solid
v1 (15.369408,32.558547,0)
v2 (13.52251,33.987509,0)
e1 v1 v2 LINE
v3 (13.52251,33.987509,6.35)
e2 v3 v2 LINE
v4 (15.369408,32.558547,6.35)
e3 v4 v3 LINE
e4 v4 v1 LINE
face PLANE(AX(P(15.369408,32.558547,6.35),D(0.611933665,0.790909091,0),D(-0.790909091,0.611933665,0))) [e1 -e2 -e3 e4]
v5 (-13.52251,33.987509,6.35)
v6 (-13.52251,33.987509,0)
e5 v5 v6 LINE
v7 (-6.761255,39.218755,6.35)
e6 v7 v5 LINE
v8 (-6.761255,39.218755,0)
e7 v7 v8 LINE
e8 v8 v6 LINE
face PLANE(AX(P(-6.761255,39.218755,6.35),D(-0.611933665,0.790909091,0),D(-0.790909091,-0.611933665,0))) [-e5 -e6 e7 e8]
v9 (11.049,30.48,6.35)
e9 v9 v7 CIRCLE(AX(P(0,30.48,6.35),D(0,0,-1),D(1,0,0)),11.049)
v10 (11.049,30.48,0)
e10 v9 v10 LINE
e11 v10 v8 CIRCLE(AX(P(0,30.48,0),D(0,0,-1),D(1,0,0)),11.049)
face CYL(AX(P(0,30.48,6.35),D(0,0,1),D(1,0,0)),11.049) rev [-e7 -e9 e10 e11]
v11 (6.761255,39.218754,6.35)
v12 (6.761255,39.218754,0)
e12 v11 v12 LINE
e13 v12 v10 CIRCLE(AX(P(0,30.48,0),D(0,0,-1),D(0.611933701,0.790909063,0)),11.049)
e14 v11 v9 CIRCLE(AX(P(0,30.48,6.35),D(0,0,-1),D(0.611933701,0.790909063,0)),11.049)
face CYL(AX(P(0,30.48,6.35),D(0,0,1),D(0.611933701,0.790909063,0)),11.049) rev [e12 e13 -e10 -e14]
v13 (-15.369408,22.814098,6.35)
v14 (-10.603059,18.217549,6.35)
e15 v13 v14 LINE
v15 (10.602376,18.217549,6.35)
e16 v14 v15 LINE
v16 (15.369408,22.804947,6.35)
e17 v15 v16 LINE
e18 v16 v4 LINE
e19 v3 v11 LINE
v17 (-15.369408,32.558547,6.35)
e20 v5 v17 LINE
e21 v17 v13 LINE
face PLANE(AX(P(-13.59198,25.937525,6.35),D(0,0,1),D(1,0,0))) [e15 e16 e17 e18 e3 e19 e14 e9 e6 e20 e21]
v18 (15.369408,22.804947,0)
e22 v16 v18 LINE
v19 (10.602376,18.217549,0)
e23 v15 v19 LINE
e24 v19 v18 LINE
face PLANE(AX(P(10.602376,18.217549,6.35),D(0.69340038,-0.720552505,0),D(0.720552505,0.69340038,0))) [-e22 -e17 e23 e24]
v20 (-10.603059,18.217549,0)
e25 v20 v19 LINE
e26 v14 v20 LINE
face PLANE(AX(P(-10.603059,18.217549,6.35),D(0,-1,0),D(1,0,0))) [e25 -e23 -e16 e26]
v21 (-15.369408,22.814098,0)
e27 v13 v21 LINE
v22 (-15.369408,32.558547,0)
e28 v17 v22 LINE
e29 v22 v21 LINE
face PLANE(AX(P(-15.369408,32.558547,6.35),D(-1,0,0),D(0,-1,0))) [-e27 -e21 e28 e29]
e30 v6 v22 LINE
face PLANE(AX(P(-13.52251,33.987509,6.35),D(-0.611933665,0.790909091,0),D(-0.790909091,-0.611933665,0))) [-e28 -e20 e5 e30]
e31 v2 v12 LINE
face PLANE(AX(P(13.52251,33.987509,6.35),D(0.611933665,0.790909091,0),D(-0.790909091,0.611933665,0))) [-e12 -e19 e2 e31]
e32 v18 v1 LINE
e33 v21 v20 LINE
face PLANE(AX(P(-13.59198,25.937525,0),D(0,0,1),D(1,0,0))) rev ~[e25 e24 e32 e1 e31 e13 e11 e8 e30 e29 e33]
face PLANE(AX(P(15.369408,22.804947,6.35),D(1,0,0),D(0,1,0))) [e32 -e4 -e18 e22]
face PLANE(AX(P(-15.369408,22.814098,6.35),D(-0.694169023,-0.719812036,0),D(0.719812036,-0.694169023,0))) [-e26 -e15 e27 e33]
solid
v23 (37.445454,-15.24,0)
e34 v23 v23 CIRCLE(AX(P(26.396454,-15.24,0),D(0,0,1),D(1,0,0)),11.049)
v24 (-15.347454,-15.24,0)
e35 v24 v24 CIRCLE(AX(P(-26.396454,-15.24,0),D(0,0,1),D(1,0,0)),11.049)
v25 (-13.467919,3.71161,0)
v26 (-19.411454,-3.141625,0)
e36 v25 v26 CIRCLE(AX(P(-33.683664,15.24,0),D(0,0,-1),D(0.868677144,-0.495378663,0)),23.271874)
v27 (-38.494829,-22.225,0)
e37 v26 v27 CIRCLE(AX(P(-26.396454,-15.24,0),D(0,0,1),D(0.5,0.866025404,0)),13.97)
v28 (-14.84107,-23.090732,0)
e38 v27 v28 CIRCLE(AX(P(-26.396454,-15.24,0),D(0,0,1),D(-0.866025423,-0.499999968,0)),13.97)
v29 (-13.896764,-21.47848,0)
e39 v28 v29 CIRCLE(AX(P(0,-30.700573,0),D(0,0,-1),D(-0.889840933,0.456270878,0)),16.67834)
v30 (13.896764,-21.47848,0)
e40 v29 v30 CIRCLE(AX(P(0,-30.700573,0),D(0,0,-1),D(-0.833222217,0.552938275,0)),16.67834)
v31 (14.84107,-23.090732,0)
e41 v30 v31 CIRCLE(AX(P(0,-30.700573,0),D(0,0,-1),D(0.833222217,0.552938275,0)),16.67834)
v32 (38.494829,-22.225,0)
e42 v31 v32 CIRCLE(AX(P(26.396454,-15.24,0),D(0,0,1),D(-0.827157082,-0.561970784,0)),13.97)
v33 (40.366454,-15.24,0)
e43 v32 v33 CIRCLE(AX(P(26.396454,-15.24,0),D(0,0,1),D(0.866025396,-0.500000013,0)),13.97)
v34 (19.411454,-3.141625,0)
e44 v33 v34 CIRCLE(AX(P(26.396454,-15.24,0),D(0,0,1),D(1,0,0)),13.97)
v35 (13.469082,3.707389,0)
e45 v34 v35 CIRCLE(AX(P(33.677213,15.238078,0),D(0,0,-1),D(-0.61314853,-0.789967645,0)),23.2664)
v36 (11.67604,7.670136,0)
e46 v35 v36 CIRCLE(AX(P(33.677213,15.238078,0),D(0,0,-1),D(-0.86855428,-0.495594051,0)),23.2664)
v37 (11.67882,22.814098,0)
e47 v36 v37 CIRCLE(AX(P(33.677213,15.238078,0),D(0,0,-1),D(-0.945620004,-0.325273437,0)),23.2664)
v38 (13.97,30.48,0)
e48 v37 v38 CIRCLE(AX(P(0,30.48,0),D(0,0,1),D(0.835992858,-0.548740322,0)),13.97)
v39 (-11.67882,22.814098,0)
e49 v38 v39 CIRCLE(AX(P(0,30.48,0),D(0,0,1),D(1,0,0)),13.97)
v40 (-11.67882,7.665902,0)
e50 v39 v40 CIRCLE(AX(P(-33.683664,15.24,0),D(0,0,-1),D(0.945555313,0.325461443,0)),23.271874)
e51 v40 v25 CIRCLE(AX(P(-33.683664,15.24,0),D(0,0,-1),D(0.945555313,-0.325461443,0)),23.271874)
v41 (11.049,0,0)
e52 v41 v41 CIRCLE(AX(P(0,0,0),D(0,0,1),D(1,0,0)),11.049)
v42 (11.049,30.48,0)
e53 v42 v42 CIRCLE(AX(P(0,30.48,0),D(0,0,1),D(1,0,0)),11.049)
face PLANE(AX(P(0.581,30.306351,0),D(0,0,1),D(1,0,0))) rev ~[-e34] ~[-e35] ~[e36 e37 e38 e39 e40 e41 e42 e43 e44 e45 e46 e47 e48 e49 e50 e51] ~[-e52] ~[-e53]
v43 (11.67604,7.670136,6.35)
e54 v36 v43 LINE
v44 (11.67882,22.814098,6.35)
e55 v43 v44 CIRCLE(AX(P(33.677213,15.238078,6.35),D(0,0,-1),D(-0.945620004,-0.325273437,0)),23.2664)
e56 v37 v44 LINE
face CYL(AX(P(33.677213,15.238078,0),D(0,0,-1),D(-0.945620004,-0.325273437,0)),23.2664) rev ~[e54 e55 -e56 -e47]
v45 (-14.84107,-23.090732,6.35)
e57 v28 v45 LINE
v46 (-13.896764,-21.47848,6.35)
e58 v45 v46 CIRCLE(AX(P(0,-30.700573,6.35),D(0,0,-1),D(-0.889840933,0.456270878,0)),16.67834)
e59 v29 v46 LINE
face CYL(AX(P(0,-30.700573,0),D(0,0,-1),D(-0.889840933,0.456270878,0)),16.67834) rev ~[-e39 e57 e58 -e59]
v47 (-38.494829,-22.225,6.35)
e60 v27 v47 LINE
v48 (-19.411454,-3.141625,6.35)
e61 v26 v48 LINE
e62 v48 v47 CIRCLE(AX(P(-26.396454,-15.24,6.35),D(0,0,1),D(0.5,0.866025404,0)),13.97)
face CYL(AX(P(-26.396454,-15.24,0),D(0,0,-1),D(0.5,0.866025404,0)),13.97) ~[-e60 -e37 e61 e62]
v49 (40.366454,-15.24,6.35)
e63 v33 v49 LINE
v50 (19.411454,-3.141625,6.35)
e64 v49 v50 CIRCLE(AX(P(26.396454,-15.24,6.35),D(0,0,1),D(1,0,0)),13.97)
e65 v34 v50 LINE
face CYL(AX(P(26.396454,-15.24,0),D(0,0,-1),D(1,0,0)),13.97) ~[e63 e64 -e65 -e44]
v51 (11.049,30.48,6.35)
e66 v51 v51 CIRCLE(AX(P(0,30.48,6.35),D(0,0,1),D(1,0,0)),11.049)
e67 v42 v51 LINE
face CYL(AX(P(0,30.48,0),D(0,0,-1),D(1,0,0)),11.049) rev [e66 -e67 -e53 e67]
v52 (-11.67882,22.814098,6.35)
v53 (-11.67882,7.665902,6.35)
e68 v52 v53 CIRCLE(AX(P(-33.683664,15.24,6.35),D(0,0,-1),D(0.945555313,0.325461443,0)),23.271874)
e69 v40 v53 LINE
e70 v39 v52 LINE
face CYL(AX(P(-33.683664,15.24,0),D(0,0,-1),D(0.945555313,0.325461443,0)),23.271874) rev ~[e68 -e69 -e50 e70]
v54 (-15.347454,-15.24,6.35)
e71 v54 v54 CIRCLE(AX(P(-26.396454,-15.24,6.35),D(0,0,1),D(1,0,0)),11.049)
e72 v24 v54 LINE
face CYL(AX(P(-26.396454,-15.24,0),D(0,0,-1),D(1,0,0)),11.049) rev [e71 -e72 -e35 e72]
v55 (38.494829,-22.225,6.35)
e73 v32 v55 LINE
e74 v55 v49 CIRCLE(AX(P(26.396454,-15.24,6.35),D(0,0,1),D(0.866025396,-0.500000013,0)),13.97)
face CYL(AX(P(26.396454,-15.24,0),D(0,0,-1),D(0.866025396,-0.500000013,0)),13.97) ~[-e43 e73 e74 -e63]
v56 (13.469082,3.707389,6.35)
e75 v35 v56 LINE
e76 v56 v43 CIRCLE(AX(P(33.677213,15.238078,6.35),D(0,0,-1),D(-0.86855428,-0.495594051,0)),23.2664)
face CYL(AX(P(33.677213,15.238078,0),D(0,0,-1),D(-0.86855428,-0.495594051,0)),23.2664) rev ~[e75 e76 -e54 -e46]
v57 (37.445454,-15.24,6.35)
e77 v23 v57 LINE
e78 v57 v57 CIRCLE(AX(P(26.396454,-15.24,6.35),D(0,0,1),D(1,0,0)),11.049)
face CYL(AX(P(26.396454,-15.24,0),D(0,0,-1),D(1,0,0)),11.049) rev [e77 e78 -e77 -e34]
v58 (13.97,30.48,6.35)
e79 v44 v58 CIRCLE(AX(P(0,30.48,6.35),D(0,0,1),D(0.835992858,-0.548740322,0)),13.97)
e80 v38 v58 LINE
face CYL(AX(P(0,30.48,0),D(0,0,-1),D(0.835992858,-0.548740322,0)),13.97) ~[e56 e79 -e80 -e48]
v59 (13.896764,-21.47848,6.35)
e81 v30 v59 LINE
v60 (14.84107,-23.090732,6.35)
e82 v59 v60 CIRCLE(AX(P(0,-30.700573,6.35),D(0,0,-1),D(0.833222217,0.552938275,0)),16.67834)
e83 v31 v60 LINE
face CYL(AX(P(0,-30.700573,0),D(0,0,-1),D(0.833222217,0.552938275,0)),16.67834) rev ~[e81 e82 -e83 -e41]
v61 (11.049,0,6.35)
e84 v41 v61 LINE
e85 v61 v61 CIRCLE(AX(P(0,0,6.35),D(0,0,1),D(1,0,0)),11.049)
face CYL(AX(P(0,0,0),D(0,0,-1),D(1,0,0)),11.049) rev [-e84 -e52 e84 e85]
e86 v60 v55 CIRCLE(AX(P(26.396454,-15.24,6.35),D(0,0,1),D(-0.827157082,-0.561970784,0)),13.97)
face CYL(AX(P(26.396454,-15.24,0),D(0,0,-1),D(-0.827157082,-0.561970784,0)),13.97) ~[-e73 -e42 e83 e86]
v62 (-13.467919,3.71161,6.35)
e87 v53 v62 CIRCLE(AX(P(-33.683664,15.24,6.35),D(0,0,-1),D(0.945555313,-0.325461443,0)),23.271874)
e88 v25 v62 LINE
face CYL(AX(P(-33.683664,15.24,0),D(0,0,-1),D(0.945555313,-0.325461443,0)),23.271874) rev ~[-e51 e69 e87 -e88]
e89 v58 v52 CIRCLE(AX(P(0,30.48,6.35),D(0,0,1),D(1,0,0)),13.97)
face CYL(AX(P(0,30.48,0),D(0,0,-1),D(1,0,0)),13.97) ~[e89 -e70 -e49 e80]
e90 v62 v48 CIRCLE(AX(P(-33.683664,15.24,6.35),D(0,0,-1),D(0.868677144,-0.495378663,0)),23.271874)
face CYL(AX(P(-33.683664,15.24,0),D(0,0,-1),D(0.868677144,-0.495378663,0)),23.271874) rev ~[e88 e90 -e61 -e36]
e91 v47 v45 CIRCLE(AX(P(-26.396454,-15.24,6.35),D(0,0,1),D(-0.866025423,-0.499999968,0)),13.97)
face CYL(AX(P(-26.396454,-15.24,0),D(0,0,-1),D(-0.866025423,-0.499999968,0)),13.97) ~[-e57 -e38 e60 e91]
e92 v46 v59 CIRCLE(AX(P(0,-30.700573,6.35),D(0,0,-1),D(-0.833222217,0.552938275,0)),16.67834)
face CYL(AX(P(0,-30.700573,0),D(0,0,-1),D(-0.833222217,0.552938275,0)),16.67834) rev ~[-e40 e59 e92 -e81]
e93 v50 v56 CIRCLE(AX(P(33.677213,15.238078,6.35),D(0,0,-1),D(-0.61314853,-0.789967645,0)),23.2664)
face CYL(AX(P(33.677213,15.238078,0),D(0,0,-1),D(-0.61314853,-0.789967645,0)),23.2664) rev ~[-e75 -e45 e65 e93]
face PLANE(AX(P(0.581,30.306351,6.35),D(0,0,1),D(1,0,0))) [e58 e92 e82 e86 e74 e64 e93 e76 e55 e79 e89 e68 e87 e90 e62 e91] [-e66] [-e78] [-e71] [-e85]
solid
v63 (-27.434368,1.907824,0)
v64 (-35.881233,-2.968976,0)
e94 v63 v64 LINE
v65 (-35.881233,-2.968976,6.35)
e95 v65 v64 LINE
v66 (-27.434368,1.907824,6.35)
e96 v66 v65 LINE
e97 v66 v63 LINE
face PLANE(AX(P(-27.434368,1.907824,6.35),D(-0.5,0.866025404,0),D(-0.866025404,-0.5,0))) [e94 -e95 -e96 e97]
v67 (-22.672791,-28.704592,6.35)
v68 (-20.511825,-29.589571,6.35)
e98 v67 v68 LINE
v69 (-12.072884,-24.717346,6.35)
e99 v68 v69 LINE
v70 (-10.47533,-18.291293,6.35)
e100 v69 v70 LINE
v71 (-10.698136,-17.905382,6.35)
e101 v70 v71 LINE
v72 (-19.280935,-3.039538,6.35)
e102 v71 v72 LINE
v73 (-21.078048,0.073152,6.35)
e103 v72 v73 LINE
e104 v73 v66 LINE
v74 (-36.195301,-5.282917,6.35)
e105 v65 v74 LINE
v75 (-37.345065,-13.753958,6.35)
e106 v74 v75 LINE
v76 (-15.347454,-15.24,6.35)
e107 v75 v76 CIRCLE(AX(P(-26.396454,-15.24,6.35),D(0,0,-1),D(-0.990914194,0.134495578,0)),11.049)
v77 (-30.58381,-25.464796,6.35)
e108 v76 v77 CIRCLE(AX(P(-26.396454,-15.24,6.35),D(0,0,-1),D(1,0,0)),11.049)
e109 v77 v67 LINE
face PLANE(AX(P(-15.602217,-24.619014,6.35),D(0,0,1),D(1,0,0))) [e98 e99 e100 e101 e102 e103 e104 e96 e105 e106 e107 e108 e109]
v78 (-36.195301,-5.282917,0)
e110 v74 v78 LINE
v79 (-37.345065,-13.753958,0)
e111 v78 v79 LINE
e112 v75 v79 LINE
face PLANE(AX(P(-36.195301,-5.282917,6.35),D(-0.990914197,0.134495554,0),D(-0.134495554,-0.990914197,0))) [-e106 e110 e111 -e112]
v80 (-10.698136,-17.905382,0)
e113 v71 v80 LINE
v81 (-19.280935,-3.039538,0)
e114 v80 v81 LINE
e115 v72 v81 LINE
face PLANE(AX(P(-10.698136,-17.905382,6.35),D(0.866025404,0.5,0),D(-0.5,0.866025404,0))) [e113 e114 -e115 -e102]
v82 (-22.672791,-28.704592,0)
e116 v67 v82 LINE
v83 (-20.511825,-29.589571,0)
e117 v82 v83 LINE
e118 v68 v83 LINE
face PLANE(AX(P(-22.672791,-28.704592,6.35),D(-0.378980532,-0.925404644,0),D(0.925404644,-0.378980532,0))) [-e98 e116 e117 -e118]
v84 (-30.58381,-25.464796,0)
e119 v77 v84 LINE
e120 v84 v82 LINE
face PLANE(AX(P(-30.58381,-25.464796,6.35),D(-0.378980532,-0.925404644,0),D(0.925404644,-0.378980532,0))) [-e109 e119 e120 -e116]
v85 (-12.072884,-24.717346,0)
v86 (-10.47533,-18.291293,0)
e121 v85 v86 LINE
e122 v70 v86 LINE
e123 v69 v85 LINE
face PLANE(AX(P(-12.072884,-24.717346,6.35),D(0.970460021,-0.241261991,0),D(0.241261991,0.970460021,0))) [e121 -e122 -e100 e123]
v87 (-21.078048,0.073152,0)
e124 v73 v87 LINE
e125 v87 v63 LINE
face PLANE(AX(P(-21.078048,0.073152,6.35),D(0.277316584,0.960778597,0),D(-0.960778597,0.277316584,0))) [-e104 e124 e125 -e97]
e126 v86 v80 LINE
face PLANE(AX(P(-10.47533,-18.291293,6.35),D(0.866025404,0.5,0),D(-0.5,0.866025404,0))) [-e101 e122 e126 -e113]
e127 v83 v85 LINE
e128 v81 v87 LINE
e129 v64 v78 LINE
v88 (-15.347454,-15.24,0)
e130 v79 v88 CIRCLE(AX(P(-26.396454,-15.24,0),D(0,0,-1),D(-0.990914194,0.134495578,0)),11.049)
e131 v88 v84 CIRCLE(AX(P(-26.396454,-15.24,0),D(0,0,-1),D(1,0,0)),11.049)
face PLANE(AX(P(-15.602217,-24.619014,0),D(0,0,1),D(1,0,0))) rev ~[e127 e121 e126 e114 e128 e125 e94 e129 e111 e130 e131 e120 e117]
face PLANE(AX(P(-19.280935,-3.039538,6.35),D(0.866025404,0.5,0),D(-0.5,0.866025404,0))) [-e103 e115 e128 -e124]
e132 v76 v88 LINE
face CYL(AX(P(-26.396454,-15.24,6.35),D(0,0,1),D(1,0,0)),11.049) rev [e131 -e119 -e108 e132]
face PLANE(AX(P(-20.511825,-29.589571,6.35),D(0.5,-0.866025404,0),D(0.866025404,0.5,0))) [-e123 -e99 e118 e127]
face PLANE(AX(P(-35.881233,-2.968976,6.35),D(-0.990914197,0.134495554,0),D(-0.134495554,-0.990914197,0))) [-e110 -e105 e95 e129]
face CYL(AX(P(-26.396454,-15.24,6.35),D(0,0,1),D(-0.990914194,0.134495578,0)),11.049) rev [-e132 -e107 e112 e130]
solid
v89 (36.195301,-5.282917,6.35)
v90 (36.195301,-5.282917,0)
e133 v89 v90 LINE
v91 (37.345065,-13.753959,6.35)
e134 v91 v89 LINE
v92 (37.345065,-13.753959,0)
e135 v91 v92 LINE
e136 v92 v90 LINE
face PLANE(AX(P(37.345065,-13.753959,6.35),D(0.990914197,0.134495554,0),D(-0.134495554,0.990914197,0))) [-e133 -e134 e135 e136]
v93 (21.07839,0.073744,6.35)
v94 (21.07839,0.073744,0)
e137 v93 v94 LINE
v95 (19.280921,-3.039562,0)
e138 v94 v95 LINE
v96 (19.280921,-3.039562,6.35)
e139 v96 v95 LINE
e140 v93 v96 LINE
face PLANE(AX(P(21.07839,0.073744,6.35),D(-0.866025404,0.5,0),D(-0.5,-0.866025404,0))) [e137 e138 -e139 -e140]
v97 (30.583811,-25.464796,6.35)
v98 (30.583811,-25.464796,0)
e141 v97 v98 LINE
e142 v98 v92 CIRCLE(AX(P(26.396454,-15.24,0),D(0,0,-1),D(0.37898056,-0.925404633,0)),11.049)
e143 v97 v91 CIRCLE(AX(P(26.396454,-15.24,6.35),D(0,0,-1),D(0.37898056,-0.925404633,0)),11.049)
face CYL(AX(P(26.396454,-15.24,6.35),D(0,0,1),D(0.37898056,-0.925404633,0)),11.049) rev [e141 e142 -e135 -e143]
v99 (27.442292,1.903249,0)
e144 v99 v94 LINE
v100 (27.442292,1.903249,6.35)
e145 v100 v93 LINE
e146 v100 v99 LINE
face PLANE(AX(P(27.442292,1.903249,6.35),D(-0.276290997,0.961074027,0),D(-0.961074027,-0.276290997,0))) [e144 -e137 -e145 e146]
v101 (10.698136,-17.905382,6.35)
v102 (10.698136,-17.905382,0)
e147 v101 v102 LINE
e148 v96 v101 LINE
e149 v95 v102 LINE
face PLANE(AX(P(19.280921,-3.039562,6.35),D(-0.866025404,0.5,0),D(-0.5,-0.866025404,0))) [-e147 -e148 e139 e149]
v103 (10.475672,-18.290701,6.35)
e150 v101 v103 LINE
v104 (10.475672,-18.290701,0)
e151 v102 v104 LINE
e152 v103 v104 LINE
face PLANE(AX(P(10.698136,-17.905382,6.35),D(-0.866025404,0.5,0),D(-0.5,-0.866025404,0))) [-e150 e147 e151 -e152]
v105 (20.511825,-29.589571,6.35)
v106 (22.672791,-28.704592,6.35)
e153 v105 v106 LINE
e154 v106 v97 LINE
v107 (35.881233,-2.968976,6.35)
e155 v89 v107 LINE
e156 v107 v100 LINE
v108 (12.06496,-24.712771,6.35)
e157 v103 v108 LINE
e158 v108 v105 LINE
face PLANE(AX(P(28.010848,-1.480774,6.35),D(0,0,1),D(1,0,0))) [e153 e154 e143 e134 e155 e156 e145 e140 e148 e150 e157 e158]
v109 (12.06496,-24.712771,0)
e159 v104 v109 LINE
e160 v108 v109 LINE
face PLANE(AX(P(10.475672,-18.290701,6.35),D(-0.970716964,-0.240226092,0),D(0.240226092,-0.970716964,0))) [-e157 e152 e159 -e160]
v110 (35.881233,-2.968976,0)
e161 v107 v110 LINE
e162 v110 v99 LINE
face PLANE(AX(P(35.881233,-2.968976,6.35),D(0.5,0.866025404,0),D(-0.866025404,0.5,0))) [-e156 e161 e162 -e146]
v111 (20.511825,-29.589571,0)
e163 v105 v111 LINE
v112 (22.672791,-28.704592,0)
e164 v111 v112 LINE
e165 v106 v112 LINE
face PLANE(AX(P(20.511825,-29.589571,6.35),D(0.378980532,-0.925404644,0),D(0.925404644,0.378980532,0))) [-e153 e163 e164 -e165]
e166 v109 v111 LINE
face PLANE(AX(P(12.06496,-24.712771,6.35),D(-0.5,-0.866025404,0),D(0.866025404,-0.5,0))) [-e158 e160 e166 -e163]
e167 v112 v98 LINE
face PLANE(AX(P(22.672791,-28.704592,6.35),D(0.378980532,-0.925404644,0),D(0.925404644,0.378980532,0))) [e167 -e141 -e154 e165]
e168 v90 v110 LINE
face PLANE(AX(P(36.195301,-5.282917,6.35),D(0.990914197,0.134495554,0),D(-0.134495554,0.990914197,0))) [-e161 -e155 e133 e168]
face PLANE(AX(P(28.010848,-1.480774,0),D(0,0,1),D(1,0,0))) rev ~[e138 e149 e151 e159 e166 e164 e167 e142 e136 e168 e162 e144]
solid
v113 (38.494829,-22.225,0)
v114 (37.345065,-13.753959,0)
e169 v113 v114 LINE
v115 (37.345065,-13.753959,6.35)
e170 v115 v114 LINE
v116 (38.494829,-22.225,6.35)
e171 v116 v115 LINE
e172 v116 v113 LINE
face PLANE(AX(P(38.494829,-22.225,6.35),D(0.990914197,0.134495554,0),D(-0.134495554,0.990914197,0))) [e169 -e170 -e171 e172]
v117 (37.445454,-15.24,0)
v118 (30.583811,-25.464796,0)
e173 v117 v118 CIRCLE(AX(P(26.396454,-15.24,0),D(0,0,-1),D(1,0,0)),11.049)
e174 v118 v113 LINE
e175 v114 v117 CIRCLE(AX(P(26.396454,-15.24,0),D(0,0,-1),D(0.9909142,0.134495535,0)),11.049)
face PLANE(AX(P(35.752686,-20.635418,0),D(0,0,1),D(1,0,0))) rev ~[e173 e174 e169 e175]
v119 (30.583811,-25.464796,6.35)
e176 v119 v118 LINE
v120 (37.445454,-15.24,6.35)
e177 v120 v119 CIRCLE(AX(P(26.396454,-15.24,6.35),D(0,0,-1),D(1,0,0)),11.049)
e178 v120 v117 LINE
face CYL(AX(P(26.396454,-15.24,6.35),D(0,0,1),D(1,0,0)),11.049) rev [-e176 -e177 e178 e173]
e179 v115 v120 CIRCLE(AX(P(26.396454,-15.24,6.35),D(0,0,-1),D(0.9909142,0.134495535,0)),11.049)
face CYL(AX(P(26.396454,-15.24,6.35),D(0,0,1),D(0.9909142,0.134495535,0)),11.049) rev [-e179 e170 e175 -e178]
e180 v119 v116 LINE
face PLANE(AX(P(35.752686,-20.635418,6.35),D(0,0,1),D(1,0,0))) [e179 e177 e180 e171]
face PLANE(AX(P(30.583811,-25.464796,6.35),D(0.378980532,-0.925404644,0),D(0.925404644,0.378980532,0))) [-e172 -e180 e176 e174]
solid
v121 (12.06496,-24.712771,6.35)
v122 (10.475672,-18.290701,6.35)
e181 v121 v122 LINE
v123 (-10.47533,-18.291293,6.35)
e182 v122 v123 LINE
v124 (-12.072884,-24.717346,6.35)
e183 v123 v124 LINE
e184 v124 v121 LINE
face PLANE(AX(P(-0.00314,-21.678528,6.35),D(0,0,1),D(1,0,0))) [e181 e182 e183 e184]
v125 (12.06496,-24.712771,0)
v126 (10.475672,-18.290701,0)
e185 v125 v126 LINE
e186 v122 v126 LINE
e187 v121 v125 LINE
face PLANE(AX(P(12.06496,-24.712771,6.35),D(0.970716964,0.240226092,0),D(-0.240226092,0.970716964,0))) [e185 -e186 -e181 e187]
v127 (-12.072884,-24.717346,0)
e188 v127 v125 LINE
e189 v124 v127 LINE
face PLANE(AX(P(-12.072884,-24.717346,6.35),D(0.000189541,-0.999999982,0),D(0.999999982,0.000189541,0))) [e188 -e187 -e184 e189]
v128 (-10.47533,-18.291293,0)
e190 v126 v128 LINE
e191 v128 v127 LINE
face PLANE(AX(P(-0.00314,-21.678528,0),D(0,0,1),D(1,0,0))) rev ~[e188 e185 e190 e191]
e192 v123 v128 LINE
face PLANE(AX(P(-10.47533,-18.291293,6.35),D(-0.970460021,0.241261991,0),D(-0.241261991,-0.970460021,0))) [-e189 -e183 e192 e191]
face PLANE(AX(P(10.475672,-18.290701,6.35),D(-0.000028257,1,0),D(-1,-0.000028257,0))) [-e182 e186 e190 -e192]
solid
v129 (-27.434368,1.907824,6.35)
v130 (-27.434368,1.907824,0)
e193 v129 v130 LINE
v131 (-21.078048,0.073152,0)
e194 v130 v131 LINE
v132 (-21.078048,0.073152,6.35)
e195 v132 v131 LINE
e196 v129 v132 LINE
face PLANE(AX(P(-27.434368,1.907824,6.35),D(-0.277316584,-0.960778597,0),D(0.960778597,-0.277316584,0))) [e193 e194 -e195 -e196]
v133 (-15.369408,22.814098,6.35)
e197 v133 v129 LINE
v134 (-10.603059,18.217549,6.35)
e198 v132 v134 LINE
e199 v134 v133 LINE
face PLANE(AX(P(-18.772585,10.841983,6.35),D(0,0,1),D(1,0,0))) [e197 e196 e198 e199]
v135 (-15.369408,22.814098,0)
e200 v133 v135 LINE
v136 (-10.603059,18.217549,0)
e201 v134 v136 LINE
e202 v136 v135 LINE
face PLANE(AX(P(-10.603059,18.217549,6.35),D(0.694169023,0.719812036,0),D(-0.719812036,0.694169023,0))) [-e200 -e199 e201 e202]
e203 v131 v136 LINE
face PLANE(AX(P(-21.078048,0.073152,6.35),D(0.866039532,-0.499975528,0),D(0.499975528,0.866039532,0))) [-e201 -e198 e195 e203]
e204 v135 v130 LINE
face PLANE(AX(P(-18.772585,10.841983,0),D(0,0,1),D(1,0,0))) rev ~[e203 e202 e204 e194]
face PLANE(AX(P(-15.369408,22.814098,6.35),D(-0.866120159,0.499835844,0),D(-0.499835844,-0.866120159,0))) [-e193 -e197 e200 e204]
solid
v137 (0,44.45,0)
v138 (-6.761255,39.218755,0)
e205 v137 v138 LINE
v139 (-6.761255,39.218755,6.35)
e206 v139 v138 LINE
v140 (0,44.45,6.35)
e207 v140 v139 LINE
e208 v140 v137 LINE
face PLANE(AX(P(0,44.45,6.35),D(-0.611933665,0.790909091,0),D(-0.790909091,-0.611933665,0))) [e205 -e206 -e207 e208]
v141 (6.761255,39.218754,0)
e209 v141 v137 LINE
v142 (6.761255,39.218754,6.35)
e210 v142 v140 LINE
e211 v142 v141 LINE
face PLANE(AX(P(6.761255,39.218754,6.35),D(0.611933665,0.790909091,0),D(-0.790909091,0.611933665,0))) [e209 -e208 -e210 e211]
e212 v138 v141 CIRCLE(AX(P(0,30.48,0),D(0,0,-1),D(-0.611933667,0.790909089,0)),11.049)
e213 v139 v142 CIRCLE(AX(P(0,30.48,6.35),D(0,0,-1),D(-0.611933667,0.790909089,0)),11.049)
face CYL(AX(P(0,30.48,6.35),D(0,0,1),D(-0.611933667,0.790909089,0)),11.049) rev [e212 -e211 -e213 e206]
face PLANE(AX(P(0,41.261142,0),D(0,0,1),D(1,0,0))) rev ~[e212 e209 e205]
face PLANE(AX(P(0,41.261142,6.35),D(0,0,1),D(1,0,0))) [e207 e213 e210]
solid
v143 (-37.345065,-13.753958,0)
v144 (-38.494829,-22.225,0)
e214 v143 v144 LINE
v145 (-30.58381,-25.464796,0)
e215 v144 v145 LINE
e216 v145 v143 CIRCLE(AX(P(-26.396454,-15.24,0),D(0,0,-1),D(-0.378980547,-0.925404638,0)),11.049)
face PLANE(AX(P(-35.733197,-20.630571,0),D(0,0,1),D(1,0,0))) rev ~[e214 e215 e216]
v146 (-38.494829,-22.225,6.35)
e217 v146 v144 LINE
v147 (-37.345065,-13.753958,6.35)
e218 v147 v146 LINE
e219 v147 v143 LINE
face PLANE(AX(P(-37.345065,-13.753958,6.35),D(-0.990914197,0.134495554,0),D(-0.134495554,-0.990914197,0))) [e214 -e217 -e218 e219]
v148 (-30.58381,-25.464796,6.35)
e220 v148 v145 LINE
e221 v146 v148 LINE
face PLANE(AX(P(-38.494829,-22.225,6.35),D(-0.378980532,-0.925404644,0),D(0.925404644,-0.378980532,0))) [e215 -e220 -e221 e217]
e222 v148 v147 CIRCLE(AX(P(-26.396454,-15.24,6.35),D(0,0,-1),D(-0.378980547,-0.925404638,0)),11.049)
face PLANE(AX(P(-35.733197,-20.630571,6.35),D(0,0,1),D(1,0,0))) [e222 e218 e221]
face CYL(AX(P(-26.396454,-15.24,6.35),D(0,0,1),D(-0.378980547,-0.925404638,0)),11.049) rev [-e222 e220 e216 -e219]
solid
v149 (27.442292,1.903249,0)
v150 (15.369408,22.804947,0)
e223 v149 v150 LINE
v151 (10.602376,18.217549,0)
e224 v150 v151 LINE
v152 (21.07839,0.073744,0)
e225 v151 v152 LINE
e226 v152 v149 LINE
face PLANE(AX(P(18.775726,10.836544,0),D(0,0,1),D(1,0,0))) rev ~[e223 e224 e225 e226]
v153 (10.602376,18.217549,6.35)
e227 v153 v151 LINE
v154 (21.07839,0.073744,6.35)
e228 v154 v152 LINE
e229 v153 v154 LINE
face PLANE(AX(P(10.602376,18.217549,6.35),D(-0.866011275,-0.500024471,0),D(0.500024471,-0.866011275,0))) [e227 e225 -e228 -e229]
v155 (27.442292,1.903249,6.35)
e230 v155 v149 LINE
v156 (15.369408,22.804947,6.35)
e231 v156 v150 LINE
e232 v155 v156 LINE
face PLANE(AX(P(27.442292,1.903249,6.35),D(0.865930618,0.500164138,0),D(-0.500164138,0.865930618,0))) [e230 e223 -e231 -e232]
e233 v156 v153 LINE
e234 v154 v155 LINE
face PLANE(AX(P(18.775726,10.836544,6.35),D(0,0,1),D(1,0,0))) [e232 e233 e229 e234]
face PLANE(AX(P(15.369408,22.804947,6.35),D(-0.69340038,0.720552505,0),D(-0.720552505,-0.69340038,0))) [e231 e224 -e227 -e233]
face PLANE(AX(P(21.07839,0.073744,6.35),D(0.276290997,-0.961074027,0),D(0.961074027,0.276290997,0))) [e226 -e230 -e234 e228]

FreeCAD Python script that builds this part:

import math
import FreeCAD as App
import Part
import Sketcher
from FreeCAD import Vector
Q = App.Units.Quantity


def add_polygon(sketch, points):
    """Adds a closed chain of lines whose ends are joined by coincident constraints."""
    first, n = sketch.GeometryCount, len(points)
    for a, b in zip(points, points[1:] + points[:1]):
        sketch.addGeometry(Part.LineSegment(App.Vector(*a, 0), App.Vector(*b, 0)), False)
    for i in range(n):
        sketch.addConstraint(Sketcher.Constraint("Coincident", first + i, 2, first + (i + 1) % n, 1))

doc = App.newDocument("Part")
body = doc.addObject("PartDesign::Body", "Body")

sketch1 = body.newObject("Sketcher::SketchObject", "Sketch")
sketch1.AttachmentSupport = (doc.getObject("XY_Plane"), [""])
sketch1.MapMode = "FlatFace"
sketch1.addGeometry([
    Part.ArcOfCircle(Part.Circle(Vector(0, 30.5, 0), Vector(0, 0, 1), 14), math.radians(0), math.radians(213)),
    Part.ArcOfCircle(Part.Circle(Vector(-33.7, 15.2, 0), Vector(0, 0, 1), 23.3), math.radians(-19), math.radians(19)),
    Part.ArcOfCircle(Part.Circle(Vector(-33.7, 15.2, 0), Vector(0, 0, 1), 23.3), math.radians(-29.69), math.radians(-18.99)),
    Part.ArcOfCircle(Part.Circle(Vector(-33.7, 15.2, 0), Vector(0, 0, 1), 23.3), math.radians(-52), math.radians(-30)),
    Part.ArcOfCircle(Part.Circle(Vector(-26.4, -15.2, 0), Vector(0, 0, 1), 14), math.radians(60), math.radians(210)),
    Part.ArcOfCircle(Part.Circle(Vector(-26.4, -15.2, 0), Vector(0, 0, 1), 14), math.radians(-150), math.radians(-34)),
    Part.ArcOfCircle(Part.Circle(Vector(0, -30.7, 0), Vector(0, 0, 1), 16.7), math.radians(146.43), math.radians(152.85)),
    Part.ArcOfCircle(Part.Circle(Vector(0, -30.7, 0), Vector(0, 0, 1), 16.7), math.radians(34), math.radians(146)),
    Part.ArcOfCircle(Part.Circle(Vector(0, -30.7, 0), Vector(0, 0, 1), 16.7), math.radians(27.15), math.radians(33.57)),
    Part.ArcOfCircle(Part.Circle(Vector(26.4, -15.2, 0), Vector(0, 0, 1), 14), math.radians(-146), math.radians(-30)),
    Part.ArcOfCircle(Part.Circle(Vector(26.4, -15.2, 0), Vector(0, 0, 1), 14), math.radians(-30), math.radians(0)),
    Part.ArcOfCircle(Part.Circle(Vector(26.4, -15.2, 0), Vector(0, 0, 1), 14), math.radians(0), math.radians(120)),
    Part.ArcOfCircle(Part.Circle(Vector(33.7, 15.2, 0), Vector(0, 0, 1), 23.3), math.radians(-150), math.radians(-128)),
    Part.ArcOfCircle(Part.Circle(Vector(33.7, 15.2, 0), Vector(0, 0, 1), 23.3), math.radians(-161.02), math.radians(-150.29)),
    Part.ArcOfCircle(Part.Circle(Vector(33.7, 15.2, 0), Vector(0, 0, 1), 23.3), math.radians(161), math.radians(199)),
    Part.ArcOfCircle(Part.Circle(Vector(0, 30.5, 0), Vector(0, 0, 1), 14), math.radians(-33), math.radians(0)),
    Part.Circle(Vector(0, 30.5, 0), Vector(0, 0, 1), 11),
    Part.Circle(Vector(0, 0, 0), Vector(0, 0, 1), 11),
    Part.Circle(Vector(26.4, -15.2, 0), Vector(0, 0, 1), 11),
    Part.Circle(Vector(-26.4, -15.2, 0), Vector(0, 0, 1), 11),
], False)
sketch1.addConstraint([
    Sketcher.Constraint("Coincident", 0, 2, 1, 2),
    Sketcher.Constraint("Tangent", 1, 1, 2, 2),
    Sketcher.Constraint("Tangent", 2, 1, 3, 2),
    Sketcher.Constraint("Coincident", 3, 1, 4, 1),
    Sketcher.Constraint("Tangent", 4, 2, 5, 1),
    Sketcher.Constraint("Coincident", 5, 2, 6, 2),
    Sketcher.Constraint("Tangent", 6, 1, 7, 2),
    Sketcher.Constraint("Tangent", 7, 1, 8, 2),
    Sketcher.Constraint("Coincident", 8, 1, 9, 1),
    Sketcher.Constraint("Tangent", 9, 2, 10, 1),
    Sketcher.Constraint("Tangent", 10, 2, 11, 1),
    Sketcher.Constraint("Coincident", 11, 2, 12, 2),
    Sketcher.Constraint("Tangent", 12, 1, 13, 2),
    Sketcher.Constraint("Tangent", 13, 1, 14, 2),
    Sketcher.Constraint("Coincident", 14, 1, 15, 1),
    Sketcher.Constraint("Tangent", 15, 2, 0, 1),
    Sketcher.Constraint("Coincident", 17, 3, -1, 1),
    Sketcher.Constraint("Coincident", 3, 3, 1, 3),
    Sketcher.Constraint("Coincident", 8, 3, 6, 3),
    Sketcher.Constraint("Coincident", 11, 3, 9, 3),
    Sketcher.Constraint("Coincident", 14, 3, 12, 3),
    Sketcher.Constraint("Coincident", 16, 3, 0, 3),
    Sketcher.Constraint("Coincident", 18, 3, 9, 3),
    Sketcher.Constraint("Coincident", 19, 3, 4, 3),
    Sketcher.Constraint("Equal", 0, 4),
    Sketcher.Constraint("Equal", 4, 5),
    Sketcher.Constraint("Equal", 5, 9),
    Sketcher.Constraint("Equal", 11, 15),
    Sketcher.Constraint("Equal", 16, 17),
    Sketcher.Constraint("Equal", 17, 18),
    Sketcher.Constraint("Equal", 18, 19),
    Sketcher.Constraint("Symmetric", 4, 3, 9, 3, -2),
    Sketcher.Constraint("Symmetric", 6, 1, 7, 1, -2),
    Sketcher.Constraint("Symmetric", 0, 2, 14, 1, -2),
    Sketcher.Constraint("Horizontal", 4, 2, 9, 2),
    Sketcher.Constraint("Horizontal", 19, 3, 10, 2),
    Sketcher.Constraint("Horizontal", 3, 1, 11, 2),
    Sketcher.Constraint("Horizontal", 16, 3, 15, 2),
    Sketcher.Constraint("Vertical", 0, 2, 1, 1),
    Sketcher.Constraint("Diameter", 16, Q("0.87 in")),
    Sketcher.Constraint("Radius", 0, Q("0.55 in")),
    Sketcher.Constraint("Radius", 12, Q("0.916 in")),
    Sketcher.Constraint("DistanceY", -1, 1, 0, 3, Q("1.2 in")),
    Sketcher.Constraint("DistanceY", -1, 1, 1, 3, Q("0.6 in")),
    Sketcher.Constraint("DistanceY", 4, 3, -1, 1, Q("0.6 in")),
    Sketcher.Constraint("DistanceY", 4, 2, -1, 1, Q("0.875 in")),
    Sketcher.Constraint("Radius", 6, 16.67834),
    Sketcher.Constraint("DistanceX", 4, 3, 3, 1, Q("0.275 in")),
    Sketcher.Constraint("Radius", 1, 23.271874),
    Sketcher.Constraint("DistanceY", 6, 3, 5, 2, Q("0.2996 in")),
    Sketcher.Constraint("DistanceX", 2, 1, 1, 1, 1.789099),
    Sketcher.Constraint("DistanceX", 0, 2, -1, 1, 11.67882),
    Sketcher.Constraint("DistanceY", 6, 1, -1, 1, 21.47848),
    Sketcher.Constraint("DistanceX", -1, 1, 12, 1, 13.469082),
    Sketcher.Constraint("DistanceX", -1, 1, 13, 1, 11.67604),
])
pad1 = body.newObject("PartDesign::Pad", "Pad")
pad1.Profile = sketch1
pad1.Length = Q("0.25 in")
body2 = doc.addObject("PartDesign::Body", "Body001")

sketch2 = body2.newObject("Sketcher::SketchObject", "Sketch001")
sketch2.AttachmentSupport = (doc.getObject("XY_Plane001"), [""])
sketch2.MapMode = "FlatFace"
sketch2.AttachmentOffset = App.Placement(Vector(0, 0, 0.25 * 25.4), App.Rotation())
sketch2.addGeometry([
    Part.LineSegment(Vector(7, 39, 0), Vector(0, 44, 0)),
    Part.LineSegment(Vector(0, 44, 0), Vector(-7, 39, 0)),
    Part.ArcOfCircle(Part.Circle(Vector(0, 30, 0), Vector(0, 0, 1), 11), math.radians(52), math.radians(128)),
], False)
sketch2.addConstraint([
    Sketcher.Constraint("Coincident", 0, 2, 1, 1),
    Sketcher.Constraint("Tangent", 1, 2, 2, 2),
    Sketcher.Constraint("Tangent", 2, 1, 0, 1),
    Sketcher.Constraint("Symmetric", 1, 2, 2, 1, -2),
    Sketcher.Constraint("Radius", 2, Q("0.435 in")),
    Sketcher.Constraint("DistanceY", -1, 1, 2, 3, Q("1.2 in")),
    Sketcher.Constraint("DistanceY", -1, 1, 0, 2, Q("1.75 in")),
])
pad2 = body2.newObject("PartDesign::Pad", "Pad001")
pad2.Profile = sketch2
pad2.Length = Q("0.25 in")
pad2.Reversed = True
body3 = doc.addObject("PartDesign::Body", "Body002")

sketch3 = body3.newObject("Sketcher::SketchObject", "Sketch002")
sketch3.AttachmentSupport = (doc.getObject("XY_Plane002"), [""])
sketch3.MapMode = "FlatFace"
sketch3.AttachmentOffset = App.Placement(Vector(0, 0, 0.25 * 25.4), App.Rotation())
sketch3.addGeometry([
    Part.ArcOfCircle(Part.Circle(Vector(-26, -15, 0), Vector(0, 0, 1), 11), math.radians(172), math.radians(248)),
    Part.LineSegment(Vector(-37, -14, 0), Vector(-38, -22, 0)),
    Part.LineSegment(Vector(-38, -22, 0), Vector(-31, -25, 0)),
], False)
sketch3.addConstraint([
    Sketcher.Constraint("Tangent", 0, 1, 1, 1),
    Sketcher.Constraint("Coincident", 1, 2, 2, 1),
    Sketcher.Constraint("Tangent", 2, 2, 0, 2),
    Sketcher.Constraint("Radius", 0, Q("0.435 in")),
    Sketcher.Constraint("DistanceY", 0, 3, -1, 1, Q("0.6 in")),
    Sketcher.Constraint("DistanceY", 1, 2, -1, 1, Q("0.875 in")),
    Sketcher.Constraint("DistanceY", 0, 1, -1, 1, 13.753958),
    Sketcher.Constraint("DistanceX", 1, 2, -1, 1, 38.494829),
])
pad3 = body3.newObject("PartDesign::Pad", "Pad002")
pad3.Profile = sketch3
pad3.Length = Q("0.25 in")
pad3.Reversed = True
body4 = doc.addObject("PartDesign::Body", "Body003")

sketch4 = body4.newObject("Sketcher::SketchObject", "Sketch003")
sketch4.AttachmentSupport = (doc.getObject("XY_Plane003"), [""])
sketch4.MapMode = "FlatFace"
sketch4.AttachmentOffset = App.Placement(Vector(0, 0, 0.25 * 25.4), App.Rotation())
sketch4.addGeometry([
    Part.LineSegment(Vector(38.5, -22.2, 0), Vector(37.3, -13.8, 0)),
    Part.ArcOfCircle(Part.Circle(Vector(26.4, -15.2, 0), Vector(0, 0, 1), 11), math.radians(0), math.radians(7.73)),
    Part.ArcOfCircle(Part.Circle(Vector(26.4, -15.2, 0), Vector(0, 0, 1), 11), math.radians(-68), math.radians(0)),
    Part.LineSegment(Vector(30.6, -25.5, 0), Vector(38.5, -22.2, 0)),
], False)
sketch4.addConstraint([
    Sketcher.Constraint("Tangent", 0, 2, 1, 2),
    Sketcher.Constraint("Tangent", 1, 1, 2, 2),
    Sketcher.Constraint("Tangent", 2, 1, 3, 1),
    Sketcher.Constraint("Coincident", 3, 2, 0, 1),
    Sketcher.Constraint("Equal", 1, 2),
    Sketcher.Constraint("Horizontal", 2, 3, 1, 1),
    Sketcher.Constraint("Radius", 1, Q("0.435 in")),
    Sketcher.Constraint("DistanceY", 1, 3, -1, 1, Q("0.6 in")),
    Sketcher.Constraint("DistanceY", 3, 2, -1, 1, Q("0.875 in")),
    Sketcher.Constraint("DistanceY", 0, 2, -1, 1, 13.753959),
    Sketcher.Constraint("DistanceX", -1, 1, 2, 1, 30.583811),
])
pad4 = body4.newObject("PartDesign::Pad", "Pad003")
pad4.Profile = sketch4
pad4.Length = Q("0.25 in")
pad4.Reversed = True
body5 = doc.addObject("PartDesign::Body", "Body004")

sketch5 = body5.newObject("Sketcher::SketchObject", "Sketch004")
sketch5.AttachmentSupport = (doc.getObject("XY_Plane004"), [""])
sketch5.MapMode = "FlatFace"
sketch5.AttachmentOffset = App.Placement(Vector(0, 0, 0.25 * 25.4), App.Rotation())
sketch5.addGeometry([
    Part.LineSegment(Vector(-13.5, 34, 0), Vector(-15.4, 32.6, 0)),
    Part.LineSegment(Vector(-15.4, 32.6, 0), Vector(-15.4, 22.8, 0)),
    Part.LineSegment(Vector(-15.4, 22.8, 0), Vector(-10.6, 18.2, 0)),
    Part.LineSegment(Vector(-10.6, 18.2, 0), Vector(10.6, 18.2, 0)),
    Part.LineSegment(Vector(10.6, 18.2, 0), Vector(15.4, 22.8, 0)),
    Part.LineSegment(Vector(15.4, 22.8, 0), Vector(15.4, 32.6, 0)),
    Part.LineSegment(Vector(15.4, 32.6, 0), Vector(13.5, 34, 0)),
    Part.LineSegment(Vector(13.5, 34, 0), Vector(6.8, 39.2, 0)),
    Part.ArcOfCircle(Part.Circle(Vector(0, 30.5, 0), Vector(0, 0, 1), 11), math.radians(0), math.radians(52)),
    Part.ArcOfCircle(Part.Circle(Vector(0, 30.5, 0), Vector(0, 0, 1), 11), math.radians(128), math.radians(360)),
    Part.LineSegment(Vector(-6.8, 39.2, 0), Vector(-13.5, 34, 0)),
], False)
sketch5.addConstraint([
    Sketcher.Constraint("Coincident", 0, 2, 1, 1),
    Sketcher.Constraint("Coincident", 1, 2, 2, 1),
    Sketcher.Constraint("Coincident", 2, 2, 3, 1),
    Sketcher.Constraint("Coincident", 3, 2, 4, 1),
    Sketcher.Constraint("Coincident", 4, 2, 5, 1),
    Sketcher.Constraint("Coincident", 5, 2, 6, 1),
    Sketcher.Constraint("Coincident", 6, 2, 7, 1),
    Sketcher.Constraint("Tangent", 7, 2, 8, 2),
    Sketcher.Constraint("Tangent", 8, 1, 9, 2),
    Sketcher.Constraint("Tangent", 9, 1, 10, 1),
    Sketcher.Constraint("Coincident", 10, 2, 0, 1),
    Sketcher.Constraint("Vertical", 1),
    Sketcher.Constraint("Horizontal", 3),
    Sketcher.Constraint("Vertical", 5),
    Sketcher.Constraint("Equal", 8, 9),
    Sketcher.Constraint("Symmetric", 0, 2, 5, 2, -2),
    Sketcher.Constraint("Symmetric", 7, 2, 9, 1, -2),
    Sketcher.Constraint("Parallel", 6, 7),
    Sketcher.Constraint("Horizontal", 9, 3, 8, 1),
    Sketcher.Constraint("Horizontal", 6, 2, 10, 2),
    Sketcher.Constraint("Radius", 8, Q("0.435 in")),
    Sketcher.Constraint("DistanceY", -1, 1, 8, 3, Q("1.2 in")),
    Sketcher.Constraint("DistanceY", 5, 1, 5, 2, Q("0.384 in")),
    Sketcher.Constraint("Distance", 4, 6.615801),
    Sketcher.Constraint("DistanceY", 1, 2, 1, 1, 9.74445),
    Sketcher.Constraint("DistanceY", 2, 2, 0, 2, 14.340999),
    Sketcher.Constraint("DistanceX", 3, 1, 3, 2, 21.205435),
    Sketcher.Constraint("DistanceX", 2, 2, -1, 1, 10.603059),
    Sketcher.Constraint("DistanceY", -1, 1, 2, 2, 18.217549),
    Sketcher.Constraint("DistanceX", -1, 1, 6, 2, 13.52251),
])
pad5 = body5.newObject("PartDesign::Pad", "Pad004")
pad5.Profile = sketch5
pad5.Length = Q("0.25 in")
pad5.Reversed = True
body6 = doc.addObject("PartDesign::Body", "Body005")

sketch6 = body6.newObject("Sketcher::SketchObject", "Sketch005")
sketch6.AttachmentSupport = (doc.getObject("XY_Plane005"), [""])
sketch6.MapMode = "FlatFace"
sketch6.AttachmentOffset = App.Placement(Vector(0, 0, 0.25 * 25.4), App.Rotation())
sketch6.addGeometry([
    Part.LineSegment(Vector(-10.48, -18.29, 0), Vector(-10.7, -17.91, 0)),
    Part.LineSegment(Vector(-10.7, -17.91, 0), Vector(-19.28, -3.04, 0)),
    Part.LineSegment(Vector(-19.28, -3.04, 0), Vector(-21.08, 0.07, 0)),
    Part.LineSegment(Vector(-21.08, 0.07, 0), Vector(-27.43, 1.91, 0)),
    Part.LineSegment(Vector(-27.43, 1.91, 0), Vector(-35.88, -2.97, 0)),
    Part.LineSegment(Vector(-35.88, -2.97, 0), Vector(-36.2, -5.28, 0)),
    Part.LineSegment(Vector(-36.2, -5.28, 0), Vector(-37.35, -13.75, 0)),
    Part.ArcOfCircle(Part.Circle(Vector(-26.4, -15.24, 0), Vector(0, 0, 1), 11.05), math.radians(0), math.radians(172)),
    Part.ArcOfCircle(Part.Circle(Vector(-26.4, -15.24, 0), Vector(0, 0, 1), 11.05), math.radians(-112), math.radians(0)),
    Part.LineSegment(Vector(-30.58, -25.46, 0), Vector(-22.67, -28.7, 0)),
    Part.LineSegment(Vector(-22.67, -28.7, 0), Vector(-20.51, -29.59, 0)),
    Part.LineSegment(Vector(-20.51, -29.59, 0), Vector(-12.07, -24.72, 0)),
    Part.LineSegment(Vector(-12.07, -24.72, 0), Vector(-10.48, -18.29, 0)),
], False)
sketch6.addConstraint([
    Sketcher.Constraint("Coincident", 0, 2, 1, 1),
    Sketcher.Constraint("Coincident", 1, 2, 2, 1),
    Sketcher.Constraint("Coincident", 2, 2, 3, 1),
    Sketcher.Constraint("Coincident", 3, 2, 4, 1),
    Sketcher.Constraint("Coincident", 4, 2, 5, 1),
    Sketcher.Constraint("Coincident", 5, 2, 6, 1),
    Sketcher.Constraint("Tangent", 6, 2, 7, 2),
    Sketcher.Constraint("Tangent", 7, 1, 8, 2),
    Sketcher.Constraint("Tangent", 8, 1, 9, 1),
    Sketcher.Constraint("Coincident", 9, 2, 10, 1),
    Sketcher.Constraint("Coincident", 10, 2, 11, 1),
    Sketcher.Constraint("Coincident", 11, 2, 12, 1),
    Sketcher.Constraint("Coincident", 12, 2, 0, 1),
    Sketcher.Constraint("Equal", 7, 8),
    Sketcher.Constraint("Parallel", 0, 1),
    Sketcher.Constraint("Parallel", 1, 2),
    Sketcher.Constraint("Perpendicular", 2, 4),
    Sketcher.Constraint("Parallel", 5, 6),
    Sketcher.Constraint("Parallel", 9, 10),
    Sketcher.Constraint("Parallel", 4, 11),
    Sketcher.Constraint("Horizontal", 8, 3, 7, 1),
    Sketcher.Constraint("Equal", 6, 9),
    Sketcher.Constraint("Equal", 5, 10),
    Sketcher.Constraint("Angle", 0, Q("120 deg")),
    Sketcher.Constraint("Radius", 7, Q("0.435 in")),
    Sketcher.Constraint("DistanceY", 7, 3, -1, 1, Q("0.6 in")),
    Sketcher.Constraint("Distance", 4, Q("0.384 in")),
    Sketcher.Constraint("DistanceY", 5, 2, 4, 2, Q("0.0911 in")),
    Sketcher.Constraint("Distance", 3, 6.615801),
    Sketcher.Constraint("DistanceX", 5, 2, -1, 1, 36.195301),
    Sketcher.Constraint("DistanceX", 1, 2, 0, 2, 8.582799),
    Sketcher.Constraint("DistanceY", 9, 2, 12, 2, 10.413299),
    Sketcher.Constraint("Distance", 11, 9.74445),
    Sketcher.Constraint("DistanceY", 0, 2, -1, 1, 17.905382),
    Sketcher.Constraint("DistanceY", 6, 2, -1, 1, 13.753958),
    Sketcher.Constraint("DistanceX", 8, 1, -1, 1, 30.58381),
    Sketcher.Constraint("DistanceX", 9, 2, -1, 1, 22.672791),
    Sketcher.Constraint("DistanceX", 12, 2, -1, 1, 10.47533),
])
pad6 = body6.newObject("PartDesign::Pad", "Pad005")
pad6.Profile = sketch6
pad6.Length = Q("0.25 in")
pad6.Reversed = True
body7 = doc.addObject("PartDesign::Body", "Body006")

sketch7 = body7.newObject("Sketcher::SketchObject", "Sketch006")
sketch7.AttachmentSupport = (doc.getObject("XY_Plane006"), [""])
sketch7.MapMode = "FlatFace"
sketch7.AttachmentOffset = App.Placement(Vector(0, 0, 0.25 * 25.4), App.Rotation())
sketch7.addGeometry([
    Part.LineSegment(Vector(35.88, -2.97, 0), Vector(27.44, 1.9, 0)),
    Part.LineSegment(Vector(27.44, 1.9, 0), Vector(21.08, 0.07, 0)),
    Part.LineSegment(Vector(21.08, 0.07, 0), Vector(19.28, -3.04, 0)),
    Part.LineSegment(Vector(19.28, -3.04, 0), Vector(10.7, -17.91, 0)),
    Part.LineSegment(Vector(10.7, -17.91, 0), Vector(10.48, -18.29, 0)),
    Part.LineSegment(Vector(10.48, -18.29, 0), Vector(12.06, -24.71, 0)),
    Part.LineSegment(Vector(12.06, -24.71, 0), Vector(20.51, -29.59, 0)),
    Part.LineSegment(Vector(20.51, -29.59, 0), Vector(22.67, -28.7, 0)),
    Part.LineSegment(Vector(22.67, -28.7, 0), Vector(30.58, -25.46, 0)),
    Part.ArcOfCircle(Part.Circle(Vector(26.4, -15.24, 0), Vector(0, 0, 1), 11.05), math.radians(8), math.radians(292)),
    Part.LineSegment(Vector(37.35, -13.75, 0), Vector(36.2, -5.28, 0)),
    Part.LineSegment(Vector(36.2, -5.28, 0), Vector(35.88, -2.97, 0)),
], False)
sketch7.addConstraint([
    Sketcher.Constraint("Coincident", 0, 2, 1, 1),
    Sketcher.Constraint("Coincident", 1, 2, 2, 1),
    Sketcher.Constraint("Coincident", 2, 2, 3, 1),
    Sketcher.Constraint("Coincident", 3, 2, 4, 1),
    Sketcher.Constraint("Coincident", 4, 2, 5, 1),
    Sketcher.Constraint("Coincident", 5, 2, 6, 1),
    Sketcher.Constraint("Coincident", 6, 2, 7, 1),
    Sketcher.Constraint("Coincident", 7, 2, 8, 1),
    Sketcher.Constraint("Tangent", 8, 2, 9, 2),
    Sketcher.Constraint("Tangent", 9, 1, 10, 1),
    Sketcher.Constraint("Coincident", 10, 2, 11, 1),
    Sketcher.Constraint("Coincident", 11, 2, 0, 1),
    Sketcher.Constraint("Perpendicular", 0, 2),
    Sketcher.Constraint("Parallel", 2, 3),
    Sketcher.Constraint("Parallel", 3, 4),
    Sketcher.Constraint("Perpendicular", 4, 6),
    Sketcher.Constraint("Parallel", 7, 8),
    Sketcher.Constraint("Parallel", 10, 11),
    Sketcher.Constraint("Equal", 8, 10),
    Sketcher.Constraint("Equal", 7, 11),
    Sketcher.Constraint("Angle", 0, Q("150 deg")),
    Sketcher.Constraint("Radius", 9, Q("0.435 in")),
    Sketcher.Constraint("DistanceY", 9, 3, -1, 1, Q("0.6 in")),
    Sketcher.Constraint("Distance", 6, Q("0.384 in")),
    Sketcher.Constraint("DistanceY", 10, 2, 11, 2, Q("0.0911 in")),
    Sketcher.Constraint("Distance", 5, 6.615801),
    Sketcher.Constraint("DistanceY", 4, 2, -1, 1, 18.290701),
    Sketcher.Constraint("DistanceX", -1, 1, 10, 2, 36.195301),
    Sketcher.Constraint("Distance", 0, 9.74445),
    Sketcher.Constraint("Distance", 3, 17.16557),
    Sketcher.Constraint("Distance", 4, 0.444928),
    Sketcher.Constraint("DistanceX", -1, 1, 0, 2, 27.442292),
    Sketcher.Constraint("DistanceY", -1, 1, 0, 2, 1.903249),
    Sketcher.Constraint("DistanceX", -1, 1, 1, 2, 21.07839),
    Sketcher.Constraint("DistanceX", -1, 1, 2, 2, 19.280921),
])
pad7 = body7.newObject("PartDesign::Pad", "Pad006")
pad7.Profile = sketch7
pad7.Length = Q("0.25 in")
pad7.Reversed = True
body8 = doc.addObject("PartDesign::Body", "Body007")

sketch8 = body8.newObject("Sketcher::SketchObject", "Sketch007")
sketch8.AttachmentSupport = (doc.getObject("XY_Plane007"), [""])
sketch8.MapMode = "FlatFace"
sketch8.AttachmentOffset = App.Placement(Vector(0, 0, 0.25 * 25.4), App.Rotation())
add_polygon(sketch8, [(-11, 18), (-15, 23), (-27, 2), (-21, 0)])
sketch8.addConstraint([
    Sketcher.Constraint("Distance", 2, 6.615801),
    Sketcher.Constraint("DistanceX", 3, 2, -1, 1, 10.603059),
    Sketcher.Constraint("DistanceY", -1, 1, 3, 2, 18.217549),
    Sketcher.Constraint("DistanceX", 1, 2, 0, 2, 12.06496),
    Sketcher.Constraint("DistanceX", 1, 2, 2, 2, 6.35632),
    Sketcher.Constraint("DistanceX", 0, 2, 3, 2, 4.766348),
    Sketcher.Constraint("DistanceY", 3, 2, 0, 2, 4.596549),
    Sketcher.Constraint("Distance", 1, 24.137845),
])
pad8 = body8.newObject("PartDesign::Pad", "Pad007")
pad8.Profile = sketch8
pad8.Length = Q("0.25 in")
pad8.Reversed = True
body9 = doc.addObject("PartDesign::Body", "Body008")

sketch9 = body9.newObject("Sketcher::SketchObject", "Sketch008")
sketch9.AttachmentSupport = (doc.getObject("XY_Plane008"), [""])
sketch9.MapMode = "FlatFace"
sketch9.AttachmentOffset = App.Placement(Vector(0, 0, 0.25 * 25.4), App.Rotation())
add_polygon(sketch9, [(27, 2), (15, 23), (11, 18), (21, 0)])
sketch9.addConstraint([
    Sketcher.Constraint("Distance", 1, 6.615801),
    Sketcher.Constraint("DistanceY", 1, 2, 0, 2, 4.587399),
    Sketcher.Constraint("DistanceY", 3, 2, 1, 2, 16.3143),
    Sketcher.Constraint("DistanceY", -1, 1, 1, 2, 18.217549),
    Sketcher.Constraint("DistanceX", -1, 1, 2, 2, 21.07839),
    Sketcher.Constraint("DistanceX", -1, 1, 3, 2, 27.442292),
    Sketcher.Constraint("Distance", 0, 24.137845),
    Sketcher.Constraint("Distance", 2, 20.951002),
])
pad9 = body9.newObject("PartDesign::Pad", "Pad008")
pad9.Profile = sketch9
pad9.Length = Q("0.25 in")
pad9.Reversed = True
body10 = doc.addObject("PartDesign::Body", "Body009")

sketch10 = body10.newObject("Sketcher::SketchObject", "Sketch009")
sketch10.AttachmentSupport = (doc.getObject("XY_Plane009"), [""])
sketch10.MapMode = "FlatFace"
sketch10.AttachmentOffset = App.Placement(Vector(0, 0, 0.25 * 25.4), App.Rotation())
add_polygon(sketch10, [(12, -25), (10, -18), (-10, -18), (-12, -25)])
sketch10.addConstraint([
    Sketcher.Constraint("Distance", 0, 6.615801),
    Sketcher.Constraint("DistanceY", 0, 2, -1, 1, 18.290701),
    Sketcher.Constraint("DistanceX", 1, 2, -1, 1, 10.47533),
    Sketcher.Constraint("DistanceX", -1, 1, 3, 2, 12.06496),
    Sketcher.Constraint("DistanceY", 3, 2, -1, 1, 24.712771),
    Sketcher.Constraint("Distance", 2, 6.621657),
    Sketcher.Constraint("Distance", 3, 24.137845),
    Sketcher.Constraint("DistanceY", 1, 2, -1, 1, 18.291293),
])
pad10 = body10.newObject("PartDesign::Pad", "Pad009")
pad10.Profile = sketch10
pad10.Length = Q("0.25 in")
pad10.Reversed = True

doc.recompute()
